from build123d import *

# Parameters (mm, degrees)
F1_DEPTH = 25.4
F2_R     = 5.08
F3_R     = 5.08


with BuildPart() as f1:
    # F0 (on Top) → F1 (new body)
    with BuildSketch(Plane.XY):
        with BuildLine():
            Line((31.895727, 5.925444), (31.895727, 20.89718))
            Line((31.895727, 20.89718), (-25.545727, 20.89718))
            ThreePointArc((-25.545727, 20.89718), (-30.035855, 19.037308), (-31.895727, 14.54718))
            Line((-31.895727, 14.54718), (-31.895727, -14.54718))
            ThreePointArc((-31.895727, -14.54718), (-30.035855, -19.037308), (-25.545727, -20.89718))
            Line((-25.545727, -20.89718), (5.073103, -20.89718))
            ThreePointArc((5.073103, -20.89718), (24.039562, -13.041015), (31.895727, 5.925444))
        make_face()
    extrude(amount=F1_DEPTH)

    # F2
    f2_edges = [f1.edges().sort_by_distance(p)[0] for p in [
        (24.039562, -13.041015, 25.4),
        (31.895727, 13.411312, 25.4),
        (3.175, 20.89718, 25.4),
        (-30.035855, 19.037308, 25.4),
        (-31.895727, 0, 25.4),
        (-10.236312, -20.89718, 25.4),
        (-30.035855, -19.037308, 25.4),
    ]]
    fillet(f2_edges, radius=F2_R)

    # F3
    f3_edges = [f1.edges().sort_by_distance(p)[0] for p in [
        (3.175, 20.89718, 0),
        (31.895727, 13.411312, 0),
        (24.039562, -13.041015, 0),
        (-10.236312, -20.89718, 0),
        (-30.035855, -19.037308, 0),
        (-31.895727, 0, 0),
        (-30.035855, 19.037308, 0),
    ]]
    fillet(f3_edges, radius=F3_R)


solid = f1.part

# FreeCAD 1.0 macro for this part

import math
import FreeCAD as App
import Part
import Sketcher
Q = App.Units.Quantity


def edges_at(feature, points):
    """Names of the edges that pass closest to the given points."""
    edges = feature.Shape.Edges
    near = lambda p: min(range(len(edges)), key=lambda i: edges[i].distToShape(Part.Vertex(*p))[0])
    return sorted({f"Edge{near(p) + 1}" for p in points})

doc = App.newDocument("Part")
params = doc.addObject("Spreadsheet::Sheet", "Params")
for row, (alias, value) in enumerate([
    ("sketch1_radius", "0.25 in"),
    ("pad1_length", "1 in"),
    ("fillet_radius", "0.2 in"),
    ("fillet2_radius", "0.2 in"),
], start=1):
    params.set(f"A{row}", alias)
    params.set(f"B{row}", "=" + value)
    params.setAlias(f"B{row}", alias)

body = doc.addObject("PartDesign::Body", "Body")

sketch1 = doc.addObject("Sketcher::SketchObject", "Sketch")
body.addObject(sketch1)
sketch1.AttachmentSupport = (doc.XY_Plane, [""])
sketch1.MapMode = "FlatFace"
sketch1.addGeometry([
    Part.LineSegment(App.Vector(32, 6, 0), App.Vector(32, 21, 0)),
    Part.LineSegment(App.Vector(32, 21, 0), App.Vector(-26, 21, 0)),
    Part.ArcOfCircle(Part.Circle(App.Vector(-26, 15, 0), App.Vector(0, 0, 1), 6), math.radians(90), math.radians(180)),
    Part.LineSegment(App.Vector(-32, 15, 0), App.Vector(-32, -15, 0)),
    Part.ArcOfCircle(Part.Circle(App.Vector(-26, -15, 0), App.Vector(0, 0, 1), 6), math.radians(-180), math.radians(-90)),
    Part.LineSegment(App.Vector(-26, -21, 0), App.Vector(5, -21, 0)),
    Part.ArcOfCircle(Part.Circle(App.Vector(5, 6, 0), App.Vector(0, 0, 1), 27), math.radians(-90), math.radians(0)),
], False)
sketch1.addConstraint([
    Sketcher.Constraint("Coincident", 0, 2, 1, 1),
    Sketcher.Constraint("Tangent", 1, 2, 2, 1),
    Sketcher.Constraint("Tangent", 2, 2, 3, 1),
    Sketcher.Constraint("Tangent", 3, 2, 4, 1),
    Sketcher.Constraint("Tangent", 4, 2, 5, 1),
    Sketcher.Constraint("Tangent", 5, 2, 6, 1),
    Sketcher.Constraint("Tangent", 6, 2, 0, 1),
    Sketcher.Constraint("Vertical", 0),
    Sketcher.Constraint("Horizontal", 1),
    Sketcher.Constraint("Vertical", 3),
    Sketcher.Constraint("Horizontal", 5),
    Sketcher.Constraint("Equal", 2, 4),
    Sketcher.Constraint("Radius", 2, Q("0.25 in")),
    Sketcher.Constraint("Radius", 6, Q("26.822625 mm")),
    Sketcher.Constraint("DistanceX", 5, 1, 5, 2, Q("30.61883 mm")),
    Sketcher.Constraint("DistanceY", 3, 2, 3, 1, Q("29.09436 mm")),
    Sketcher.Constraint("DistanceX", -1, 1, 6, 3, Q("5.073102 mm")),
    Sketcher.Constraint("DistanceY", -1, 1, 2, 3, Q("14.54718 mm")),
])
sketch1.setExpression("Constraints[12]", "Params.sketch1_radius")
pad1 = doc.addObject("PartDesign::Pad", "Pad")
body.addObject(pad1)
pad1.Profile = sketch1
pad1.setExpression("Length", "Params.pad1_length")
doc.recompute()

fillet = doc.addObject("PartDesign::Fillet", "Fillet")
body.addObject(fillet)
fillet.Base = (pad1, edges_at(pad1, [
    (24.04, -13.041, 25.4),
    (31.896, 13.411, 25.4),
    (3.175, 20.897, 25.4),
    (-30.036, 19.037, 25.4),
    (-31.896, 0, 25.4),
    (-10.236, -20.897, 25.4),
    (-30.036, -19.037, 25.4),
]))
fillet.setExpression("Radius", "Params.fillet_radius")
doc.recompute()

fillet2 = doc.addObject("PartDesign::Fillet", "Fillet001")
body.addObject(fillet2)
fillet2.Base = (fillet, edges_at(fillet, [
    (3.175, 20.897, 0),
    (31.896, 13.411, 0),
    (24.04, -13.041, 0),
    (-10.236, -20.897, 0),
    (-30.036, -19.037, 0),
    (-31.896, 0, 0),
    (-30.036, 19.037, 0),
]))
fillet2.setExpression("Radius", "Params.fillet2_radius")

doc.recompute()
